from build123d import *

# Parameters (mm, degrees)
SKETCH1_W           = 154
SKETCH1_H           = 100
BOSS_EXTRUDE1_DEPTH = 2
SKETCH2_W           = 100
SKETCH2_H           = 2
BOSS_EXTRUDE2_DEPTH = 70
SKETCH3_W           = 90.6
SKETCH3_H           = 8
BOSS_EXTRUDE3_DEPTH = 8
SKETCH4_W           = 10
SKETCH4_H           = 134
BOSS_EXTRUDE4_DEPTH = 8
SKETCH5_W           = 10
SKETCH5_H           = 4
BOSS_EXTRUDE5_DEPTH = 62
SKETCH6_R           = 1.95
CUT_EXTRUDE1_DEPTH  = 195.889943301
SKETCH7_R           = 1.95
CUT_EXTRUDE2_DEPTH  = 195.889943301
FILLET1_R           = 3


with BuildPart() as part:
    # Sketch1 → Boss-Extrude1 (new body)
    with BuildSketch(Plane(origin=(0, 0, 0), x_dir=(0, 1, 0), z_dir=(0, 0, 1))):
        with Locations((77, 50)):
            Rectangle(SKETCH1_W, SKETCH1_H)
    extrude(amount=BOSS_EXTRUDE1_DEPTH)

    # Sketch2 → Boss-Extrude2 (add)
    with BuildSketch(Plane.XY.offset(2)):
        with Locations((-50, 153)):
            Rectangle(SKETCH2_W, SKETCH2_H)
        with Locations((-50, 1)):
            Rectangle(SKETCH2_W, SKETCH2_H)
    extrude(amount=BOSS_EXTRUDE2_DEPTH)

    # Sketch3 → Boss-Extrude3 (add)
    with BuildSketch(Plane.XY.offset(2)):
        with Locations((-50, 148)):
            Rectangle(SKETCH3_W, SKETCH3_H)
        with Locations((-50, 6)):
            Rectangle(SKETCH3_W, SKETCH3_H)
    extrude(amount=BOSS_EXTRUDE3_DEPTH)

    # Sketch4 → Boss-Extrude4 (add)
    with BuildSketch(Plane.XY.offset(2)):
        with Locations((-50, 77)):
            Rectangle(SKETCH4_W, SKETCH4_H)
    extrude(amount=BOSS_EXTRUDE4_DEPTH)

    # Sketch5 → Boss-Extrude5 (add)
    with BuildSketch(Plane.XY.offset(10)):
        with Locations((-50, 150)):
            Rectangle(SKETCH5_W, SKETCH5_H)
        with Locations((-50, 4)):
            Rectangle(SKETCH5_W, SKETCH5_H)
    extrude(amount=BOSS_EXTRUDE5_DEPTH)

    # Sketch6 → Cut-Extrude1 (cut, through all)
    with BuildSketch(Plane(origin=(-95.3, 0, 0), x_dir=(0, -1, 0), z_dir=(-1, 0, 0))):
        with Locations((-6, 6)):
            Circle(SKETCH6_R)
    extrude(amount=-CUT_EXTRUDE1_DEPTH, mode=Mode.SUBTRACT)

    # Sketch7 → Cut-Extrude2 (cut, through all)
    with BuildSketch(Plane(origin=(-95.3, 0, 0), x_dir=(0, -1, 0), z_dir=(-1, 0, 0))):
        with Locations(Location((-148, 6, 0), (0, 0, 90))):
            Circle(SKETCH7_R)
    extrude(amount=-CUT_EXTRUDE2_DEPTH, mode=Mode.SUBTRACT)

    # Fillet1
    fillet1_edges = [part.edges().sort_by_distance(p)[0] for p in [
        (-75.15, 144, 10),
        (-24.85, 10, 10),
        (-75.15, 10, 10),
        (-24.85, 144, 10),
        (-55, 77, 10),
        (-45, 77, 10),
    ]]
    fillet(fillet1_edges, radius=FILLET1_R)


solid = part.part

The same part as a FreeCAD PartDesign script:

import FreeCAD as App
import Part
import Sketcher

V = App.Vector


def edges_at(feature, points):
    """Names of the edges that pass closest to the given points."""
    edges = feature.Shape.Edges
    near = lambda p: min(range(len(edges)), key=lambda i: edges[i].distToShape(Part.Vertex(*p))[0])
    return sorted({f"Edge{near(p) + 1}" for p in points})


def add_polygon(sketch, points):
    """Adds a closed chain of lines whose ends are joined by coincident constraints."""
    first, n = sketch.GeometryCount, len(points)
    for a, b in zip(points, points[1:] + points[:1]):
        sketch.addGeometry(Part.LineSegment(App.Vector(*a, 0), App.Vector(*b, 0)), False)
    for i in range(n):
        sketch.addConstraint(Sketcher.Constraint("Coincident", first + i, 2, first + (i + 1) % n, 1))

doc = App.newDocument("Part")
body = doc.addObject("PartDesign::Body", "Body")

# Sketch on XY plane
sketch1 = body.newObject("Sketcher::SketchObject", "Sketch")
sketch1.AttachmentSupport = (doc.getObject("XY_Plane"), [""])
sketch1.MapMode = "FlatFace"
add_polygon(sketch1, [(-100, 0), (0, 0), (0, 154), (-100, 154)])  # lines 0-3
sketch1.addConstraint([
    Sketcher.Constraint("Horizontal", 0),
    Sketcher.Constraint("Vertical", 1),
    Sketcher.Constraint("Horizontal", 2),
    Sketcher.Constraint("Vertical", 3),
    Sketcher.Constraint("Coincident", 0, 2, -1, 1),
    Sketcher.Constraint("DistanceX", 0, 1, 0, 2, 100.0),
    Sketcher.Constraint("DistanceY", 1, 1, 1, 2, 154.0),
])
pad1 = body.newObject("PartDesign::Pad", "Pad")
pad1.Profile = sketch1
pad1.Length = 2

# Sketch on XY plane
sketch2 = body.newObject("Sketcher::SketchObject", "Sketch001")
sketch2.AttachmentSupport = (doc.getObject("XY_Plane"), [""])
sketch2.MapMode = "FlatFace"
sketch2.AttachmentOffset = App.Placement(V(0, 0, 2), App.Rotation())
add_polygon(sketch2, [(-100, 154), (-100, 152), (0, 152), (0, 154)])  # lines 0-3
add_polygon(sketch2, [(-100, 2), (-100, 0), (0, 0), (0, 2)])  # lines 4-7
sketch2.addConstraint([
    Sketcher.Constraint("Vertical", 0),
    Sketcher.Constraint("Horizontal", 1),
    Sketcher.Constraint("Vertical", 2),
    Sketcher.Constraint("Horizontal", 3),
    Sketcher.Constraint("Vertical", 4),
    Sketcher.Constraint("Horizontal", 5),
    Sketcher.Constraint("Vertical", 6),
    Sketcher.Constraint("Horizontal", 7),
    Sketcher.Constraint("Coincident", 5, 2, -1, 1),
    Sketcher.Constraint("PointOnObject", 1, 2, -2),
    Sketcher.Constraint("Vertical", 3, 2, 4, 2),
    Sketcher.Constraint("Equal", 2, 4),
    Sketcher.Constraint("DistanceX", 1, 1, 1, 2, 100.0),
    Sketcher.Constraint("DistanceY", 0, 2, 0, 1, 2.0),
    Sketcher.Constraint("DistanceY", -1, 1, 0, 2, 152.0),
])
pad2 = body.newObject("PartDesign::Pad", "Pad001")
pad2.Profile = sketch2
pad2.Length = 70

# Sketch on XY plane
sketch3 = body.newObject("Sketcher::SketchObject", "Sketch002")
sketch3.AttachmentSupport = (doc.getObject("XY_Plane"), [""])
sketch3.MapMode = "FlatFace"
sketch3.AttachmentOffset = App.Placement(V(0, 0, 2), App.Rotation())
add_polygon(sketch3, [(-95, 152), (-95, 144), (-5, 144), (-5, 152)])  # lines 0-3
add_polygon(sketch3, [(-95, 10), (-95, 2), (-5, 2), (-5, 10)])  # lines 4-7
sketch3.addConstraint([
    Sketcher.Constraint("Vertical", 0),
    Sketcher.Constraint("Horizontal", 1),
    Sketcher.Constraint("Vertical", 2),
    Sketcher.Constraint("Horizontal", 3),
    Sketcher.Constraint("Vertical", 4),
    Sketcher.Constraint("Horizontal", 5),
    Sketcher.Constraint("Vertical", 6),
    Sketcher.Constraint("Horizontal", 7),
    Sketcher.Constraint("Vertical", 3, 2, 4, 2),
    Sketcher.Constraint("Vertical", 2, 2, 5, 2),
    Sketcher.Constraint("Equal", 2, 4),
    Sketcher.Constraint("DistanceY", 0, 2, 0, 1, 8.0),
    Sketcher.Constraint("DistanceX", 1, 1, 1, 2, 90.6),
    Sketcher.Constraint("DistanceY", -1, 1, 0, 2, 144.0),
    Sketcher.Constraint("DistanceY", -1, 1, 4, 2, 2.0),
    Sketcher.Constraint("DistanceX", 0, 2, -1, 1, 95.3),
])
pad3 = body.newObject("PartDesign::Pad", "Pad002")
pad3.Profile = sketch3
pad3.Length = 8

# Sketch on XY plane
sketch4 = body.newObject("Sketcher::SketchObject", "Sketch003")
sketch4.AttachmentSupport = (doc.getObject("XY_Plane"), [""])
sketch4.MapMode = "FlatFace"
sketch4.AttachmentOffset = App.Placement(V(0, 0, 2), App.Rotation())
add_polygon(sketch4, [(-55, 144), (-55, 10), (-45, 10), (-45, 144)])  # lines 0-3
sketch4.addConstraint([
    Sketcher.Constraint("Vertical", 0),
    Sketcher.Constraint("Horizontal", 1),
    Sketcher.Constraint("Vertical", 2),
    Sketcher.Constraint("Horizontal", 3),
    Sketcher.Constraint("DistanceX", 1, 1, 1, 2, 10.0),
    Sketcher.Constraint("DistanceY", 0, 2, 0, 1, 134.0),
    Sketcher.Constraint("DistanceX", 0, 2, -1, 1, 55.0),
    Sketcher.Constraint("DistanceY", -1, 1, 0, 2, 10.0),
])
pad4 = body.newObject("PartDesign::Pad", "Pad003")
pad4.Profile = sketch4
pad4.Length = 8

# Sketch on XY plane
sketch5 = body.newObject("Sketcher::SketchObject", "Sketch004")
sketch5.AttachmentSupport = (doc.getObject("XY_Plane"), [""])
sketch5.MapMode = "FlatFace"
sketch5.AttachmentOffset = App.Placement(V(0, 0, 10), App.Rotation())
add_polygon(sketch5, [(-55, 152), (-55, 148), (-45, 148), (-45, 152)])  # lines 0-3
add_polygon(sketch5, [(-55, 6), (-55, 2), (-45, 2), (-45, 6)])  # lines 4-7
sketch5.addConstraint([
    Sketcher.Constraint("Vertical", 0),
    Sketcher.Constraint("Horizontal", 1),
    Sketcher.Constraint("Vertical", 2),
    Sketcher.Constraint("Horizontal", 3),
    Sketcher.Constraint("Vertical", 4),
    Sketcher.Constraint("Horizontal", 5),
    Sketcher.Constraint("Vertical", 6),
    Sketcher.Constraint("Horizontal", 7),
    Sketcher.Constraint("Vertical", 3, 2, 4, 2),
    Sketcher.Constraint("Vertical", 2, 2, 5, 2),
    Sketcher.Constraint("Equal", 2, 4),
    Sketcher.Constraint("DistanceX", 1, 1, 1, 2, 10.0),
    Sketcher.Constraint("DistanceY", 0, 2, 0, 1, 4.0),
    Sketcher.Constraint("DistanceX", 0, 2, -1, 1, 55.0),
    Sketcher.Constraint("DistanceY", -1, 1, 0, 2, 148.0),
    Sketcher.Constraint("DistanceY", -1, 1, 4, 2, 2.0),
])
pad5 = body.newObject("PartDesign::Pad", "Pad004")
pad5.Profile = sketch5
pad5.Length = 62

# Sketch on YZ plane
sketch6 = body.newObject("Sketcher::SketchObject", "Sketch005")
sketch6.AttachmentSupport = (doc.getObject("YZ_Plane"), [""])
sketch6.MapMode = "FlatFace"
sketch6.AttachmentOffset = App.Placement(V(0, 0, -95.3), App.Rotation())
sketch6.addGeometry(Part.Circle(V(6, 6, 0), V(0, 0, 1), 1.9), False)
sketch6.addConstraint([
    Sketcher.Constraint("Diameter", 0, 3.9),
    Sketcher.Constraint("DistanceX", -1, 1, 0, 3, 6.0),
    Sketcher.Constraint("DistanceY", -1, 1, 0, 3, 6.0),
])
pocket1 = body.newObject("PartDesign::Pocket", "Pocket")
pocket1.Profile = sketch6
pocket1.Type = "ThroughAll"
pocket1.Reversed = True

# Sketch on YZ plane
sketch7 = body.newObject("Sketcher::SketchObject", "Sketch006")
sketch7.AttachmentSupport = (doc.getObject("YZ_Plane"), [""])
sketch7.MapMode = "FlatFace"
sketch7.AttachmentOffset = App.Placement(V(0, 0, -95.3), App.Rotation())
sketch7.addGeometry(Part.Circle(V(148, 6, 0), V(0, 0, 1), 1.9), False)
sketch7.addConstraint([
    Sketcher.Constraint("Diameter", 0, 3.9),
    Sketcher.Constraint("DistanceX", -1, 1, 0, 3, 148.0),
    Sketcher.Constraint("DistanceY", -1, 1, 0, 3, 6.0),
])
pocket2 = body.newObject("PartDesign::Pocket", "Pocket001")
pocket2.Profile = sketch7
pocket2.Type = "ThroughAll"
pocket2.Reversed = True
doc.recompute()

fillet = body.newObject("PartDesign::Fillet", "Fillet")
fillet.Base = (pocket2, edges_at(pocket2, [
    (-75.15, 144, 10),
    (-24.85, 10, 10),
    (-75.15, 10, 10),
    (-24.85, 144, 10),
    (-55, 77, 10),
    (-45, 77, 10),
]))
fillet.Radius = 3

doc.recompute()
